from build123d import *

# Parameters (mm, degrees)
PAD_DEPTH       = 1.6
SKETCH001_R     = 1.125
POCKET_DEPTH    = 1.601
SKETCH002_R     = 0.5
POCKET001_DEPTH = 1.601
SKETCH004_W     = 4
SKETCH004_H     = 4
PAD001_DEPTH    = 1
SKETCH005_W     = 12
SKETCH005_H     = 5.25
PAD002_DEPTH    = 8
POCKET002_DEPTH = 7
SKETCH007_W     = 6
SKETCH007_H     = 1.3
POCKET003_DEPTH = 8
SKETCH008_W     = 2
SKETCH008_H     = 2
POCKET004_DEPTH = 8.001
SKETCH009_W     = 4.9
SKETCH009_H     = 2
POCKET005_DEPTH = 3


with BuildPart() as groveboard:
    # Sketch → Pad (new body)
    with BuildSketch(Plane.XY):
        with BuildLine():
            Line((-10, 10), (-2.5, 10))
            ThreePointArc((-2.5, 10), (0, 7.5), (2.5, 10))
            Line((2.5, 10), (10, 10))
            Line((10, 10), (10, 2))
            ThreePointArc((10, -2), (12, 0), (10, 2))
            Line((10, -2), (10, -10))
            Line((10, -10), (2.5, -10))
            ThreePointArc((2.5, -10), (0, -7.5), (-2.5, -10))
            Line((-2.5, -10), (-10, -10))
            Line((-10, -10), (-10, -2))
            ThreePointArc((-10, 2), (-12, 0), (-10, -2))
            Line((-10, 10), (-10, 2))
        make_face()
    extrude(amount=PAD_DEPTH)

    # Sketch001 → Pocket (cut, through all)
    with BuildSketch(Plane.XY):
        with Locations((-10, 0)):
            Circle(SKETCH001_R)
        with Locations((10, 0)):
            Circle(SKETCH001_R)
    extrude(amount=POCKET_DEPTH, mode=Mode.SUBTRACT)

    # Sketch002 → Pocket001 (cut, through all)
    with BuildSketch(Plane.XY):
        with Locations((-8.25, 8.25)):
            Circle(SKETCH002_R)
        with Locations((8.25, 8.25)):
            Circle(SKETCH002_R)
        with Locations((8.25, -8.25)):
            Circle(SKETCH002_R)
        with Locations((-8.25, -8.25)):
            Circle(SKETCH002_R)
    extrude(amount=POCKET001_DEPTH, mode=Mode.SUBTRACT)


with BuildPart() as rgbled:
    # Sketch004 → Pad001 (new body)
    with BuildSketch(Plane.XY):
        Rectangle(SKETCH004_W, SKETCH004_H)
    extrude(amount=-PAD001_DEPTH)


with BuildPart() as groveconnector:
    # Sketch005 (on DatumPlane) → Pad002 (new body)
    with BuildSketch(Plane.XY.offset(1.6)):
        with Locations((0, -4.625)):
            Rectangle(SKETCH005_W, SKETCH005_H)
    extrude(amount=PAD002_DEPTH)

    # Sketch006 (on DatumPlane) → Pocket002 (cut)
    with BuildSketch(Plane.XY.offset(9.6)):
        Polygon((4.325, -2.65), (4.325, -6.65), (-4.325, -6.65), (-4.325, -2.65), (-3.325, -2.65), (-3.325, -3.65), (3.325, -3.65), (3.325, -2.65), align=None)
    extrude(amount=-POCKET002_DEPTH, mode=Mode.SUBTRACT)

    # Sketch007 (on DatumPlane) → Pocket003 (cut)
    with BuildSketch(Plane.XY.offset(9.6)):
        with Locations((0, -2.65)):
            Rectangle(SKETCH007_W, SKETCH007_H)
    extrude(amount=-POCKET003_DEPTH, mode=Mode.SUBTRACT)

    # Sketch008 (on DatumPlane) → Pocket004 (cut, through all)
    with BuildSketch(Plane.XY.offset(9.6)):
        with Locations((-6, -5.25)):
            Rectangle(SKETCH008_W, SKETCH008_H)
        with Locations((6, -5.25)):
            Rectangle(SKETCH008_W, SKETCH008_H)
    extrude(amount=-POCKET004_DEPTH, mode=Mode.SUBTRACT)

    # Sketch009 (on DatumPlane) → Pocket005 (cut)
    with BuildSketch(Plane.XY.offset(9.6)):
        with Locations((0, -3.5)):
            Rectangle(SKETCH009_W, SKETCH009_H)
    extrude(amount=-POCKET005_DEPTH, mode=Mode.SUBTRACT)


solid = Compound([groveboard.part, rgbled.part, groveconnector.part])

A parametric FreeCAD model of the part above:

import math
import FreeCAD as App
import Part
import Sketcher

V = App.Vector
Q = App.Units.Quantity

doc = App.newDocument("Part")
body = doc.addObject("PartDesign::Body", "Body")

sketch1 = body.newObject("Sketcher::SketchObject", "Sketch")
sketch1.AttachmentSupport = (doc.getObject("XY_Plane"), [""])
sketch1.MapMode = "FlatFace"
sketch1.addGeometry(Part.LineSegment(V(-2.5, 10, 0), V(-10, 10, 0)), False)
sketch1.addGeometry(Part.LineSegment(V(-10, 10, 0), V(-10, 2, 0)), False)
sketch1.addGeometry(Part.ArcOfCircle(Part.Circle(V(-10, 0, 0), V(0, 0, 1), 2), math.radians(90), math.radians(270)), False)
sketch1.addGeometry(Part.LineSegment(V(-10, -2, 0), V(-10, -10, 0)), False)
sketch1.addGeometry(Part.LineSegment(V(-10, -10, 0), V(-2.5, -10, 0)), False)
sketch1.addGeometry(Part.ArcOfCircle(Part.Circle(V(0, -10, 0), V(0, 0, 1), 2.5), math.radians(0), math.radians(180)), False)
sketch1.addGeometry(Part.LineSegment(V(2.5, -10, 0), V(10, -10, 0)), False)
sketch1.addGeometry(Part.LineSegment(V(10, -10, 0), V(10, -2, 0)), False)
sketch1.addGeometry(Part.ArcOfCircle(Part.Circle(V(10, 0, 0), V(0, 0, 1), 2), math.radians(-90), math.radians(90)), False)
sketch1.addGeometry(Part.LineSegment(V(10, 2, 0), V(10, 10, 0)), False)
sketch1.addGeometry(Part.LineSegment(V(10, 10, 0), V(2.5, 10, 0)), False)
sketch1.addGeometry(Part.ArcOfCircle(Part.Circle(V(0, 10, 0), V(0, 0, 1), 2.5), math.radians(180), math.radians(360)), False)
sketch1.addConstraint(Sketcher.Constraint("Coincident", 0, 2, 1, 1))
sketch1.addConstraint(Sketcher.Constraint("Coincident", 1, 2, 2, 1))
sketch1.addConstraint(Sketcher.Constraint("Coincident", 2, 2, 3, 1))
sketch1.addConstraint(Sketcher.Constraint("Coincident", 3, 2, 4, 1))
sketch1.addConstraint(Sketcher.Constraint("Coincident", 4, 2, 5, 2))
sketch1.addConstraint(Sketcher.Constraint("Coincident", 5, 1, 6, 1))
sketch1.addConstraint(Sketcher.Constraint("Coincident", 6, 2, 7, 1))
sketch1.addConstraint(Sketcher.Constraint("Coincident", 7, 2, 8, 1))
sketch1.addConstraint(Sketcher.Constraint("Coincident", 8, 2, 9, 1))
sketch1.addConstraint(Sketcher.Constraint("Coincident", 9, 2, 10, 1))
sketch1.addConstraint(Sketcher.Constraint("Coincident", 10, 2, 11, 2))
sketch1.addConstraint(Sketcher.Constraint("Coincident", 11, 1, 0, 1))
sketch1.addConstraint(Sketcher.Constraint("Horizontal", 0))
sketch1.addConstraint(Sketcher.Constraint("Vertical", 1))
sketch1.addConstraint(Sketcher.Constraint("Vertical", 3))
sketch1.addConstraint(Sketcher.Constraint("Horizontal", 4))
sketch1.addConstraint(Sketcher.Constraint("Horizontal", 6))
sketch1.addConstraint(Sketcher.Constraint("Vertical", 7))
sketch1.addConstraint(Sketcher.Constraint("Vertical", 9))
sketch1.addConstraint(Sketcher.Constraint("Horizontal", 10))
sketch1.addConstraint(Sketcher.Constraint("Equal", 2, 8))
sketch1.addConstraint(Sketcher.Constraint("Equal", 5, 11))
sketch1.addConstraint(Sketcher.Constraint("Symmetric", 2, 3, 8, 3, -1, 1))
sketch1.addConstraint(Sketcher.Constraint("Symmetric", 5, 3, 11, 3, -1, 1))
sketch1.addConstraint(Sketcher.Constraint("Symmetric", 0, 2, 6, 2, -1, 1))
sketch1.addConstraint(Sketcher.Constraint("Symmetric", 3, 2, 9, 2, -1, 1))
sketch1.addConstraint(Sketcher.Constraint("Symmetric", 4, 2, 5, 1, -2))
sketch1.addConstraint(Sketcher.Constraint("Symmetric", 2, 2, 7, 2, -2))
sketch1.addConstraint(Sketcher.Constraint("Horizontal", 11, 3, 0, 2))
sketch1.addConstraint(Sketcher.Constraint("Vertical", 2, 3, 0, 2))
sketch1.addConstraint(Sketcher.Constraint("Radius", 2, Q("2 mm")))
sketch1.addConstraint(Sketcher.Constraint("Radius", 5, Q("2.5 mm")))
sketch1.addConstraint(Sketcher.Constraint("DistanceY", 1, 2, 1, 1, Q("8 mm")))
sketch1.addConstraint(Sketcher.Constraint("DistanceX", 0, 2, 0, 1, Q("7.5 mm")))
pad1 = body.newObject("PartDesign::Pad", "Pad")
pad1.Profile = sketch1
pad1.Length = 1.6

sketch2 = body.newObject("Sketcher::SketchObject", "Sketch001")
sketch2.AttachmentSupport = (doc.getObject("XY_Plane"), [""])
sketch2.MapMode = "FlatFace"
sketch2.addGeometry(Part.Circle(V(-10, 0, 0), V(0, 0, 1), 1.1), False)
sketch2.addGeometry(Part.Circle(V(10, 0, 0), V(0, 0, 1), 1.1), False)
sketch2.addConstraint(Sketcher.Constraint("Equal", 0, 1))
sketch2.addConstraint(Sketcher.Constraint("Symmetric", 0, 3, 1, 3, -1, 1))
sketch2.addConstraint(Sketcher.Constraint("PointOnObject", 0, 3, -1))
sketch2.addConstraint(Sketcher.Constraint("Diameter", 0, Q("2.25 mm")))
sketch2.addConstraint(Sketcher.Constraint("DistanceX", 0, 3, -1, 1, Q("10 mm")))
pocket1 = body.newObject("PartDesign::Pocket", "Pocket")
pocket1.Profile = sketch2
pocket1.Type = "ThroughAll"
pocket1.Reversed = True

sketch3 = body.newObject("Sketcher::SketchObject", "Sketch002")
sketch3.AttachmentSupport = (doc.getObject("XY_Plane"), [""])
sketch3.MapMode = "FlatFace"
sketch3.addGeometry(Part.Circle(V(-8.2, 8.2, 0), V(0, 0, 1), 0.5), False)
sketch3.addGeometry(Part.Circle(V(8.2, 8.2, 0), V(0, 0, 1), 0.5), False)
sketch3.addGeometry(Part.Circle(V(8.2, -8.2, 0), V(0, 0, 1), 0.5), False)
sketch3.addGeometry(Part.Circle(V(-8.2, -8.2, 0), V(0, 0, 1), 0.5), False)
sketch3.addConstraint(Sketcher.Constraint("Equal", 0, 1))
sketch3.addConstraint(Sketcher.Constraint("Equal", 1, 2))
sketch3.addConstraint(Sketcher.Constraint("Equal", 2, 3))
sketch3.addConstraint(Sketcher.Constraint("Symmetric", 0, 3, 2, 3, -1, 1))
sketch3.addConstraint(Sketcher.Constraint("Symmetric", 1, 3, 3, 3, -1, 1))
sketch3.addConstraint(Sketcher.Constraint("Symmetric", 0, 3, 1, 3, -2))
sketch3.addConstraint(Sketcher.Constraint("Diameter", 0, Q("1 mm")))
sketch3.addConstraint(Sketcher.Constraint("DistanceX", 0, 3, 1, 3, Q("16.5 mm")))
sketch3.addConstraint(Sketcher.Constraint("DistanceY", 2, 3, 1, 3, Q("16.5 mm")))
pocket2 = body.newObject("PartDesign::Pocket", "Pocket001")
pocket2.Profile = sketch3
pocket2.Type = "ThroughAll"
pocket2.Reversed = True
body2 = doc.addObject("PartDesign::Body", "Body001")

sketch4 = body2.newObject("Sketcher::SketchObject", "Sketch003")
sketch4.AttachmentSupport = (doc.getObject("XY_Plane001"), [""])
sketch4.MapMode = "FlatFace"
sketch4.addGeometry(Part.LineSegment(V(-2, 2, 0), V(-2, -2, 0)), False)
sketch4.addGeometry(Part.LineSegment(V(-2, -2, 0), V(2, -2, 0)), False)
sketch4.addGeometry(Part.LineSegment(V(2, -2, 0), V(2, 2, 0)), False)
sketch4.addGeometry(Part.LineSegment(V(2, 2, 0), V(-2, 2, 0)), False)
sketch4.addConstraint(Sketcher.Constraint("Coincident", 0, 2, 1, 1))
sketch4.addConstraint(Sketcher.Constraint("Coincident", 1, 2, 2, 1))
sketch4.addConstraint(Sketcher.Constraint("Coincident", 2, 2, 3, 1))
sketch4.addConstraint(Sketcher.Constraint("Coincident", 3, 2, 0, 1))
sketch4.addConstraint(Sketcher.Constraint("Vertical", 0))
sketch4.addConstraint(Sketcher.Constraint("Horizontal", 1))
sketch4.addConstraint(Sketcher.Constraint("Vertical", 2))
sketch4.addConstraint(Sketcher.Constraint("Horizontal", 3))
sketch4.addConstraint(Sketcher.Constraint("Symmetric", 0, 2, 2, 2, -1, 1))
sketch4.addConstraint(Sketcher.Constraint("Equal", 3, 0))
sketch4.addConstraint(Sketcher.Constraint("DistanceX", 1, 1, 1, 2, Q("4 mm")))
pad2 = body2.newObject("PartDesign::Pad", "Pad001")
pad2.Profile = sketch4
pad2.Length = 1
pad2.Reversed = True
body3 = doc.addObject("PartDesign::Body", "Body002")

sketch5 = body3.newObject("Sketcher::SketchObject", "Sketch004")
sketch5.AttachmentSupport = (doc.getObject("XY_Plane002"), [""])
sketch5.MapMode = "FlatFace"
sketch5.AttachmentOffset = App.Placement(V(0, 0, 1.6), App.Rotation())
sketch5.addGeometry(Part.LineSegment(V(-6, -2, 0), V(-6, -7, 0)), False)
sketch5.addGeometry(Part.LineSegment(V(-6, -7, 0), V(6, -7, 0)), False)
sketch5.addGeometry(Part.LineSegment(V(6, -7, 0), V(6, -2, 0)), False)
sketch5.addGeometry(Part.LineSegment(V(6, -2, 0), V(-6, -2, 0)), False)
sketch5.addConstraint(Sketcher.Constraint("Coincident", 0, 2, 1, 1))
sketch5.addConstraint(Sketcher.Constraint("Coincident", 1, 2, 2, 1))
sketch5.addConstraint(Sketcher.Constraint("Coincident", 2, 2, 3, 1))
sketch5.addConstraint(Sketcher.Constraint("Coincident", 3, 2, 0, 1))
sketch5.addConstraint(Sketcher.Constraint("Vertical", 0))
sketch5.addConstraint(Sketcher.Constraint("Horizontal", 1))
sketch5.addConstraint(Sketcher.Constraint("Vertical", 2))
sketch5.addConstraint(Sketcher.Constraint("Horizontal", 3))
sketch5.addConstraint(Sketcher.Constraint("DistanceX", 1, 1, 1, 2, Q("12 mm")))
sketch5.addConstraint(Sketcher.Constraint("DistanceX", 0, 2, -1, 1, Q("6 mm")))
sketch5.addConstraint(Sketcher.Constraint("DistanceY", 2, 2, -1, 1, Q("2 mm")))
sketch5.addConstraint(Sketcher.Constraint("DistanceY", 0, 2, 0, 1, Q("5.25 mm")))
pad3 = body3.newObject("PartDesign::Pad", "Pad002")
pad3.Profile = sketch5
pad3.Length = 8

sketch6 = body3.newObject("Sketcher::SketchObject", "Sketch005")
sketch6.AttachmentSupport = (doc.getObject("XY_Plane002"), [""])
sketch6.MapMode = "FlatFace"
sketch6.AttachmentOffset = App.Placement(V(0, 0, 9.6), App.Rotation())
sketch6.addGeometry(Part.LineSegment(V(4.3, -6.7, 0), V(4.3, -2.6, 0)), False)
sketch6.addGeometry(Part.LineSegment(V(4.3, -2.6, 0), V(3.3, -2.6, 0)), False)
sketch6.addGeometry(Part.LineSegment(V(3.3, -2.6, 0), V(3.3, -3.6, 0)), False)
sketch6.addGeometry(Part.LineSegment(V(3.3, -3.6, 0), V(-3.3, -3.6, 0)), False)
sketch6.addGeometry(Part.LineSegment(V(-3.3, -3.6, 0), V(-3.3, -2.6, 0)), False)
sketch6.addGeometry(Part.LineSegment(V(-3.3, -2.6, 0), V(-4.3, -2.6, 0)), False)
sketch6.addGeometry(Part.LineSegment(V(-4.3, -2.6, 0), V(-4.3, -6.7, 0)), False)
sketch6.addGeometry(Part.LineSegment(V(-4.3, -6.7, 0), V(4.3, -6.7, 0)), False)
sketch6.addConstraint(Sketcher.Constraint("Coincident", 0, 2, 1, 1))
sketch6.addConstraint(Sketcher.Constraint("Coincident", 1, 2, 2, 1))
sketch6.addConstraint(Sketcher.Constraint("Coincident", 2, 2, 3, 1))
sketch6.addConstraint(Sketcher.Constraint("Coincident", 3, 2, 4, 1))
sketch6.addConstraint(Sketcher.Constraint("Coincident", 4, 2, 5, 1))
sketch6.addConstraint(Sketcher.Constraint("Coincident", 5, 2, 6, 1))
sketch6.addConstraint(Sketcher.Constraint("Coincident", 6, 2, 7, 1))
sketch6.addConstraint(Sketcher.Constraint("Coincident", 7, 2, 0, 1))
sketch6.addConstraint(Sketcher.Constraint("Vertical", 0))
sketch6.addConstraint(Sketcher.Constraint("Horizontal", 1))
sketch6.addConstraint(Sketcher.Constraint("Vertical", 2))
sketch6.addConstraint(Sketcher.Constraint("Horizontal", 3))
sketch6.addConstraint(Sketcher.Constraint("Vertical", 4))
sketch6.addConstraint(Sketcher.Constraint("Horizontal", 5))
sketch6.addConstraint(Sketcher.Constraint("Vertical", 6))
sketch6.addConstraint(Sketcher.Constraint("Horizontal", 7))
sketch6.addConstraint(Sketcher.Constraint("Symmetric", 1, 2, 4, 2, -2))
sketch6.addConstraint(Sketcher.Constraint("Equal", 1, 5))
sketch6.addConstraint(Sketcher.Constraint("Equal", 5, 2))
sketch6.addConstraint(Sketcher.Constraint("DistanceX", 1, 2, 1, 1, Q("1 mm")))
sketch6.addConstraint(Sketcher.Constraint("DistanceY", 0, 1, 0, 2, Q("4 mm")))
sketch6.addConstraint(Sketcher.Constraint("DistanceX", 3, 2, 3, 1, Q("6.65 mm")))
sketch6.addConstraint(Sketcher.Constraint("DistanceY", 0, 2, -1, 1, Q("2.65 mm")))
pocket3 = body3.newObject("PartDesign::Pocket", "Pocket002")
pocket3.Profile = sketch6
pocket3.Length = 7

sketch7 = body3.newObject("Sketcher::SketchObject", "Sketch006")
sketch7.AttachmentSupport = (doc.getObject("XY_Plane002"), [""])
sketch7.MapMode = "FlatFace"
sketch7.AttachmentOffset = App.Placement(V(0, 0, 9.6), App.Rotation())
sketch7.addGeometry(Part.LineSegment(V(-3, -2, 0), V(-3, -3.3, 0)), False)
sketch7.addGeometry(Part.LineSegment(V(-3, -3.3, 0), V(3, -3.3, 0)), False)
sketch7.addGeometry(Part.LineSegment(V(3, -3.3, 0), V(3, -2, 0)), False)
sketch7.addGeometry(Part.LineSegment(V(3, -2, 0), V(-3, -2, 0)), False)
sketch7.addConstraint(Sketcher.Constraint("Coincident", 0, 2, 1, 1))
sketch7.addConstraint(Sketcher.Constraint("Coincident", 1, 2, 2, 1))
sketch7.addConstraint(Sketcher.Constraint("Coincident", 2, 2, 3, 1))
sketch7.addConstraint(Sketcher.Constraint("Coincident", 3, 2, 0, 1))
sketch7.addConstraint(Sketcher.Constraint("Vertical", 0))
sketch7.addConstraint(Sketcher.Constraint("Horizontal", 1))
sketch7.addConstraint(Sketcher.Constraint("Vertical", 2))
sketch7.addConstraint(Sketcher.Constraint("Horizontal", 3))
sketch7.addConstraint(Sketcher.Constraint("DistanceX", 1, 1, 1, 2, Q("6 mm")))
sketch7.addConstraint(Sketcher.Constraint("DistanceY", 0, 2, 0, 1, Q("1.3 mm")))
sketch7.addConstraint(Sketcher.Constraint("DistanceX", 0, 2, -1, 1, Q("3 mm")))
sketch7.addConstraint(Sketcher.Constraint("DistanceY", 2, 2, -1, 1, Q("2 mm")))
pocket4 = body3.newObject("PartDesign::Pocket", "Pocket003")
pocket4.Profile = sketch7
pocket4.Length = 8

sketch8 = body3.newObject("Sketcher::SketchObject", "Sketch007")
sketch8.AttachmentSupport = (doc.getObject("XY_Plane002"), [""])
sketch8.MapMode = "FlatFace"
sketch8.AttachmentOffset = App.Placement(V(0, 0, 9.6), App.Rotation())
sketch8.addGeometry(Part.LineSegment(V(-7, -4.2, 0), V(-7, -6.2, 0)), False)
sketch8.addGeometry(Part.LineSegment(V(-7, -6.2, 0), V(-5, -6.2, 0)), False)
sketch8.addGeometry(Part.LineSegment(V(-5, -6.2, 0), V(-5, -4.2, 0)), False)
sketch8.addGeometry(Part.LineSegment(V(-5, -4.2, 0), V(-7, -4.2, 0)), False)
sketch8.addGeometry(Part.LineSegment(V(5, -4.2, 0), V(5, -6.2, 0)), False)
sketch8.addGeometry(Part.LineSegment(V(5, -6.2, 0), V(7, -6.2, 0)), False)
sketch8.addGeometry(Part.LineSegment(V(7, -6.2, 0), V(7, -4.2, 0)), False)
sketch8.addGeometry(Part.LineSegment(V(7, -4.2, 0), V(5, -4.2, 0)), False)
sketch8.addConstraint(Sketcher.Constraint("Coincident", 0, 2, 1, 1))
sketch8.addConstraint(Sketcher.Constraint("Coincident", 1, 2, 2, 1))
sketch8.addConstraint(Sketcher.Constraint("Coincident", 2, 2, 3, 1))
sketch8.addConstraint(Sketcher.Constraint("Coincident", 3, 2, 0, 1))
sketch8.addConstraint(Sketcher.Constraint("Coincident", 4, 2, 5, 1))
sketch8.addConstraint(Sketcher.Constraint("Coincident", 5, 2, 6, 1))
sketch8.addConstraint(Sketcher.Constraint("Coincident", 6, 2, 7, 1))
sketch8.addConstraint(Sketcher.Constraint("Coincident", 7, 2, 4, 1))
sketch8.addConstraint(Sketcher.Constraint("Vertical", 0))
sketch8.addConstraint(Sketcher.Constraint("Horizontal", 1))
sketch8.addConstraint(Sketcher.Constraint("Vertical", 2))
sketch8.addConstraint(Sketcher.Constraint("Horizontal", 3))
sketch8.addConstraint(Sketcher.Constraint("Vertical", 4))
sketch8.addConstraint(Sketcher.Constraint("Horizontal", 5))
sketch8.addConstraint(Sketcher.Constraint("Vertical", 6))
sketch8.addConstraint(Sketcher.Constraint("Horizontal", 7))
sketch8.addConstraint(Sketcher.Constraint("Symmetric", 1, 2, 4, 2, -2))
sketch8.addConstraint(Sketcher.Constraint("Symmetric", 3, 2, 6, 2, -2))
sketch8.addConstraint(Sketcher.Constraint("Equal", 7, 0))
sketch8.addConstraint(Sketcher.Constraint("DistanceX", 1, 1, 1, 2, Q("2 mm")))
sketch8.addConstraint(Sketcher.Constraint("DistanceX", 0, 2, -1, 1, Q("7 mm")))
sketch8.addConstraint(Sketcher.Constraint("DistanceY", 0, 2, -1, 1, Q("6.25 mm")))
pocket5 = body3.newObject("PartDesign::Pocket", "Pocket004")
pocket5.Profile = sketch8
pocket5.Type = "ThroughAll"

sketch9 = body3.newObject("Sketcher::SketchObject", "Sketch008")
sketch9.AttachmentSupport = (doc.getObject("XY_Plane002"), [""])
sketch9.MapMode = "FlatFace"
sketch9.AttachmentOffset = App.Placement(V(0, 0, 9.6), App.Rotation())
sketch9.addGeometry(Part.LineSegment(V(-2.5, -2.5, 0), V(-2.5, -4.5, 0)), False)
sketch9.addGeometry(Part.LineSegment(V(-2.5, -4.5, 0), V(2.5, -4.5, 0)), False)
sketch9.addGeometry(Part.LineSegment(V(2.5, -4.5, 0), V(2.5, -2.5, 0)), False)
sketch9.addGeometry(Part.LineSegment(V(2.5, -2.5, 0), V(-2.5, -2.5, 0)), False)
sketch9.addConstraint(Sketcher.Constraint("Coincident", 0, 2, 1, 1))
sketch9.addConstraint(Sketcher.Constraint("Coincident", 1, 2, 2, 1))
sketch9.addConstraint(Sketcher.Constraint("Coincident", 2, 2, 3, 1))
sketch9.addConstraint(Sketcher.Constraint("Coincident", 3, 2, 0, 1))
sketch9.addConstraint(Sketcher.Constraint("Vertical", 0))
sketch9.addConstraint(Sketcher.Constraint("Horizontal", 1))
sketch9.addConstraint(Sketcher.Constraint("Vertical", 2))
sketch9.addConstraint(Sketcher.Constraint("Horizontal", 3))
sketch9.addConstraint(Sketcher.Constraint("DistanceY", 0, 2, 0, 1, Q("2 mm")))
sketch9.addConstraint(Sketcher.Constraint("DistanceX", 1, 1, 1, 2, Q("4.9 mm")))
sketch9.addConstraint(Sketcher.Constraint("DistanceY", 0, 2, -1, 1, Q("4.5 mm")))
sketch9.addConstraint(Sketcher.Constraint("DistanceX", 0, 2, -1, 1, Q("2.45 mm")))
pocket6 = body3.newObject("PartDesign::Pocket", "Pocket005")
pocket6.Profile = sketch9
pocket6.Length = 3

doc.recompute()
